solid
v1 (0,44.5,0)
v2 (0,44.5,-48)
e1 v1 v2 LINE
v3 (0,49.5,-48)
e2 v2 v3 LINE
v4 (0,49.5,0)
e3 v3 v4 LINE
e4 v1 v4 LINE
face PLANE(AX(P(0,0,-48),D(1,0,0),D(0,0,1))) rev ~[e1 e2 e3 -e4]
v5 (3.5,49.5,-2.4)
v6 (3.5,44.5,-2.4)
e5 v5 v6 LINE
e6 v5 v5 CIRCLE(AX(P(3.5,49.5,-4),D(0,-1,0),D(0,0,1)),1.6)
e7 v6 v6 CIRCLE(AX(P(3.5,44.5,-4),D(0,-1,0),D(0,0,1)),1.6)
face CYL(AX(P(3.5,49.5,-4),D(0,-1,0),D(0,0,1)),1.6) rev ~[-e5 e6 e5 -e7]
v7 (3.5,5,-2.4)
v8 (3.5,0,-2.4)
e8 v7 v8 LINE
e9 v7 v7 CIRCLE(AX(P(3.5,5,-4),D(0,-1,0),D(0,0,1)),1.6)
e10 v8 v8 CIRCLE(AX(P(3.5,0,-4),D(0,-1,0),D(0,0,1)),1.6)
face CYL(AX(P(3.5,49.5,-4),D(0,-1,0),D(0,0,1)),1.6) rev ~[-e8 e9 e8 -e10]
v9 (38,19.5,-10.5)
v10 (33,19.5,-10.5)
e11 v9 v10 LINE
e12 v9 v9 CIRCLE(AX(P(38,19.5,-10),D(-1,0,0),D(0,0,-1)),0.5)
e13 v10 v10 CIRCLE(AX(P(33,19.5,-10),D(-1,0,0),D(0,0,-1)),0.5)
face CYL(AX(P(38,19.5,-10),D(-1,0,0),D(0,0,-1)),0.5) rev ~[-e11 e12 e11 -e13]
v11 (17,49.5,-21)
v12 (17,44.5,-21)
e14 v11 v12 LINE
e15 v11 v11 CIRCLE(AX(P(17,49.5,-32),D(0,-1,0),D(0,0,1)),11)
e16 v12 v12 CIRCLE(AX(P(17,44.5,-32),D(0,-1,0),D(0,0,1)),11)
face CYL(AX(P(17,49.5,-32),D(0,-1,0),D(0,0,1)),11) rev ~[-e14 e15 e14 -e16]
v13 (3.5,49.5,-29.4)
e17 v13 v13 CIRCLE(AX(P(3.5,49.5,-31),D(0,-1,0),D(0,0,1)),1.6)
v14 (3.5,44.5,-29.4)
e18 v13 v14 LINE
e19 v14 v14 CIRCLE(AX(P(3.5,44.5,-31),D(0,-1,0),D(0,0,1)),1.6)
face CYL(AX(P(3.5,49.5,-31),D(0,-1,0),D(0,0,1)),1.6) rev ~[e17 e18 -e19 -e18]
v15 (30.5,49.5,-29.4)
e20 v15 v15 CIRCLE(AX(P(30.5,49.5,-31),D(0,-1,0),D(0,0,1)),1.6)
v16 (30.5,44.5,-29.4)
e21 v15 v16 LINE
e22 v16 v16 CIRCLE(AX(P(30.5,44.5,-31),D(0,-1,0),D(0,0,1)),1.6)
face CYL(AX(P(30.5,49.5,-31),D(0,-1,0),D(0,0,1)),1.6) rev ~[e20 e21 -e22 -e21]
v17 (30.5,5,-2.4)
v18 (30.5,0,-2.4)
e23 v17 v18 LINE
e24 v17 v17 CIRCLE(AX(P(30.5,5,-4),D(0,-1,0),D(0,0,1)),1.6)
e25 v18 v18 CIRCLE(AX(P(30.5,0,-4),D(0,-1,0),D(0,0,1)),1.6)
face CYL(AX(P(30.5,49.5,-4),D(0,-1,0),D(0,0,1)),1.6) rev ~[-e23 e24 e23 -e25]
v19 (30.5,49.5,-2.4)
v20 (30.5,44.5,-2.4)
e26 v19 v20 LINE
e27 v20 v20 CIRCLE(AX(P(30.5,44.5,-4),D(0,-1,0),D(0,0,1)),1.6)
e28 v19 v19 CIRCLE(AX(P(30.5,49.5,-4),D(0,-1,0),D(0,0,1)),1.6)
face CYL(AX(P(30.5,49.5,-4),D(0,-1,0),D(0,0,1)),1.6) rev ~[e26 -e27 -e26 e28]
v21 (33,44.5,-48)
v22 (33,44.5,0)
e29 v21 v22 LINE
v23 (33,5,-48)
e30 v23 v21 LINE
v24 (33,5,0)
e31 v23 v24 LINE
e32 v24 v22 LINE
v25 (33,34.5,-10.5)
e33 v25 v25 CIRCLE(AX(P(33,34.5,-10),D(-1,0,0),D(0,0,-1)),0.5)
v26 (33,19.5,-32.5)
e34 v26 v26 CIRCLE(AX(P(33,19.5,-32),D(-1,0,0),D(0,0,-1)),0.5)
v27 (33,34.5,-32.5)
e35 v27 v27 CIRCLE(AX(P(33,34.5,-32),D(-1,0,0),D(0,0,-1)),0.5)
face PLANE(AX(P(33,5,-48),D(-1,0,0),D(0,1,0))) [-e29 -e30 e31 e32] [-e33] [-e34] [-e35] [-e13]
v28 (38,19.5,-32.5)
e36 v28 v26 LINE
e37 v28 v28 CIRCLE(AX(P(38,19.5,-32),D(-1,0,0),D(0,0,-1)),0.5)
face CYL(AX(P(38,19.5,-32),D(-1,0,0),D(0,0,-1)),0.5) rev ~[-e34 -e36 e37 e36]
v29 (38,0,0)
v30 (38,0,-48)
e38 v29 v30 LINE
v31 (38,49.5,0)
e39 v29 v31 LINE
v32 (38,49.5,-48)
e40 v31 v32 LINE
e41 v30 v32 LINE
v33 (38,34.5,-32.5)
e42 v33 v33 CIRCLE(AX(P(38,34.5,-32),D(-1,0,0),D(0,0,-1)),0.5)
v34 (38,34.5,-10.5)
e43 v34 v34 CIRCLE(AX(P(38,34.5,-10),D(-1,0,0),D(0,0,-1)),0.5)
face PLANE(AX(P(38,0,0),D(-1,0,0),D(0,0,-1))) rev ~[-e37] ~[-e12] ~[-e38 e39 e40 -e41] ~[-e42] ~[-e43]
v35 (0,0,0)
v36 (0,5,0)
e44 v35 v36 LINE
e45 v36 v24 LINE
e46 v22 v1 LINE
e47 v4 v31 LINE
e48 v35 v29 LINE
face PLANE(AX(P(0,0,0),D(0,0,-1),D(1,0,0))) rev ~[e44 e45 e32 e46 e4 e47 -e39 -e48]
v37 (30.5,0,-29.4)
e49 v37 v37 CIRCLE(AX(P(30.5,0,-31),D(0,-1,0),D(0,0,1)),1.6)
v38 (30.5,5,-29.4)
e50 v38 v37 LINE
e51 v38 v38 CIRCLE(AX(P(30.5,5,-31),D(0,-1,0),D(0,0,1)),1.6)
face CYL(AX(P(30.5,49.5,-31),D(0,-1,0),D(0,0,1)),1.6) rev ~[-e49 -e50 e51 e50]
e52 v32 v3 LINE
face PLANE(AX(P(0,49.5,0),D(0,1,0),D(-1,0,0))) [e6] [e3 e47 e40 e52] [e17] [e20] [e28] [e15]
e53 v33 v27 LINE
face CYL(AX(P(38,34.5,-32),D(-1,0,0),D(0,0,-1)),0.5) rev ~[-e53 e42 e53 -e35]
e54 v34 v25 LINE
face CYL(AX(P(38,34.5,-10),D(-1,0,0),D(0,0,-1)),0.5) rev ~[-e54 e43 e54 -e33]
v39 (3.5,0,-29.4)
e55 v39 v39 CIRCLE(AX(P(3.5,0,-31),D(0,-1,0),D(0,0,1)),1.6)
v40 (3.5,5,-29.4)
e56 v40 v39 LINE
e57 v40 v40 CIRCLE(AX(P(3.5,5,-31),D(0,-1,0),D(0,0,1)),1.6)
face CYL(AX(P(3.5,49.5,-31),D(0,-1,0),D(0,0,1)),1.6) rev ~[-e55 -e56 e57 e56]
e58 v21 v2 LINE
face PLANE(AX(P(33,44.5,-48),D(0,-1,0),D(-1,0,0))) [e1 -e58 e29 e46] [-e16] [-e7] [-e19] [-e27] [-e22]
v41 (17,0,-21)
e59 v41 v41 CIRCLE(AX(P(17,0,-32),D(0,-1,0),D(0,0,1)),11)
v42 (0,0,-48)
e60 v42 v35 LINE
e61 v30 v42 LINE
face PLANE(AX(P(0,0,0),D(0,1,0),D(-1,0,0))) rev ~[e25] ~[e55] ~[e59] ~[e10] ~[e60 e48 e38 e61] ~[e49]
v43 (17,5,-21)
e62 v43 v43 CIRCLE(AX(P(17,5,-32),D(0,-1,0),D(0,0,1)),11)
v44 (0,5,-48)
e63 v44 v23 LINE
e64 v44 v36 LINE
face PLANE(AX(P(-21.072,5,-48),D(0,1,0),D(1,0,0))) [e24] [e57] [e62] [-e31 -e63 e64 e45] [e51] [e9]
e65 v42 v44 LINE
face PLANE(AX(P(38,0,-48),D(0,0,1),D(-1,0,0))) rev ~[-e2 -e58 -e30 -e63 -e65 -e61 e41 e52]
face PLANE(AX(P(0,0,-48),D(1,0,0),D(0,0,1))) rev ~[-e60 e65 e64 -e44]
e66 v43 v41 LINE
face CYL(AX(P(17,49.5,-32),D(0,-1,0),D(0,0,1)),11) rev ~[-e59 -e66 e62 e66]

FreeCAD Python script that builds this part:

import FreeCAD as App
import Part
import Sketcher

V = App.Vector


def add_polygon(sketch, points):
    """Adds a closed chain of lines whose ends are joined by coincident constraints."""
    first, n = sketch.GeometryCount, len(points)
    for a, b in zip(points, points[1:] + points[:1]):
        sketch.addGeometry(Part.LineSegment(App.Vector(*a, 0), App.Vector(*b, 0)), False)
    for i in range(n):
        sketch.addConstraint(Sketcher.Constraint("Coincident", first + i, 2, first + (i + 1) % n, 1))

doc = App.newDocument("Part")
body = doc.addObject("PartDesign::Body", "Body")

sketch1 = body.newObject("Sketcher::SketchObject", "Sketch")
sketch1.AttachmentSupport = (doc.getObject("XZ_Plane"), [""])
sketch1.MapMode = "FlatFace"
add_polygon(sketch1, [(0, -48), (0, 0), (38, 0), (38, -48)])
sketch1.addConstraint([
    Sketcher.Constraint("Vertical", 0),
    Sketcher.Constraint("Horizontal", 1),
    Sketcher.Constraint("Vertical", 2),
    Sketcher.Constraint("Horizontal", 3),
    Sketcher.Constraint("Coincident", 0, 2, -1, 1),
    Sketcher.Constraint("DistanceX", 1, 1, 1, 2, 38.0),
    Sketcher.Constraint("DistanceY", 0, 1, 0, 2, 48.0),
])
pad1 = body.newObject("PartDesign::Pad", "Pad")
pad1.Profile = sketch1
pad1.Length = 49.5
pad1.Reversed = True

sketch2 = body.newObject("Sketcher::SketchObject", "Sketch001")
sketch2.AttachmentSupport = (doc.getObject("XY_Plane"), [""])
sketch2.MapMode = "FlatFace"
sketch2.AttachmentOffset = App.Placement(V(0, 0, -48), App.Rotation())
add_polygon(sketch2, [(-21, 44), (33, 44), (33, 5), (-21, 5)])
sketch2.addConstraint([
    Sketcher.Constraint("Horizontal", 0),
    Sketcher.Constraint("Vertical", 1),
    Sketcher.Constraint("Horizontal", 2),
    Sketcher.Constraint("Vertical", 3),
    Sketcher.Constraint("DistanceY", 1, 2, 1, 1, 39.5),
    Sketcher.Constraint("DistanceY", -1, 1, 1, 2, 5.0),
    Sketcher.Constraint("DistanceX", -1, 1, 0, 2, 33.0),
    Sketcher.Constraint("DistanceX", 0, 1, 0, 2, 54.072),
])
pocket1 = body.newObject("PartDesign::Pocket", "Pocket")
pocket1.Profile = sketch2
pocket1.Length = 100
pocket1.Reversed = True

sketch3 = body.newObject("Sketcher::SketchObject", "Sketch002")
sketch3.AttachmentSupport = (doc.getObject("XZ_Plane"), [""])
sketch3.MapMode = "FlatFace"
sketch3.AttachmentOffset = App.Placement(V(0, 0, -49.5), App.Rotation())
sketch3.addGeometry(Part.Circle(V(17, -32, 0), V(0, 0, 1), 11), False)
sketch3.addConstraint([
    Sketcher.Constraint("Diameter", 0, 22.0),
    Sketcher.Constraint("DistanceX", -1, 1, 0, 3, 17.0),
    Sketcher.Constraint("DistanceY", 0, 3, -1, 1, 32.0),
])
doc.recompute()
hole = body.newObject("PartDesign::Hole", "Hole")
hole.Profile = sketch3
hole.ThreadType = "None"
hole.Diameter = 22
hole.DepthType = "ThroughAll"
hole.Reversed = True

sketch4 = body.newObject("Sketcher::SketchObject", "Sketch003")
sketch4.AttachmentSupport = (doc.getObject("XZ_Plane"), [""])
sketch4.MapMode = "FlatFace"
sketch4.AttachmentOffset = App.Placement(V(0, 0, -49.5), App.Rotation())
sketch4.addGeometry([
    Part.Circle(V(30.5, -4, 0), V(0, 0, 1), 1.6),
    Part.Circle(V(30.5, -31, 0), V(0, 0, 1), 1.6),
    Part.Circle(V(3.5, -31, 0), V(0, 0, 1), 1.6),
    Part.Circle(V(3.5, -4, 0), V(0, 0, 1), 1.6),
], False)
sketch4.addConstraint([
    Sketcher.Constraint("Equal", 0, 1),
    Sketcher.Constraint("Equal", 1, 2),
    Sketcher.Constraint("Equal", 2, 3),
    Sketcher.Constraint("Horizontal", 1, 3, 2, 3),
    Sketcher.Constraint("Horizontal", 0, 3, 3, 3),
    Sketcher.Constraint("Vertical", 0, 3, 1, 3),
    Sketcher.Constraint("Vertical", 2, 3, 3, 3),
    Sketcher.Constraint("Diameter", 0, 3.2),
    Sketcher.Constraint("DistanceY", 0, 3, -1, 1, 4.0),
    Sketcher.Constraint("DistanceY", 1, 3, -1, 1, 31.0),
    Sketcher.Constraint("DistanceX", 2, 3, 1, 3, 27.0),
    Sketcher.Constraint("DistanceX", -1, 1, 0, 3, 30.5),
])
doc.recompute()
hole2 = body.newObject("PartDesign::Hole", "Hole001")
hole2.Profile = sketch4
hole2.ThreadType = "None"
hole2.Diameter = 3.2
hole2.DepthType = "ThroughAll"
hole2.Reversed = True

sketch5 = body.newObject("Sketcher::SketchObject", "Sketch004")
sketch5.AttachmentSupport = (doc.getObject("YZ_Plane"), [""])
sketch5.MapMode = "FlatFace"
sketch5.AttachmentOffset = App.Placement(V(0, 0, 38), App.Rotation())
sketch5.addGeometry([
    Part.Circle(V(34.5, -10, 0), V(0, 0, 1), 0.5),
    Part.Circle(V(34.5, -32, 0), V(0, 0, 1), 0.5),
    Part.Circle(V(19.5, -10, 0), V(0, 0, 1), 0.5),
    Part.Circle(V(19.5, -32, 0), V(0, 0, 1), 0.5),
], False)
sketch5.addConstraint([
    Sketcher.Constraint("Equal", 0, 1),
    Sketcher.Constraint("Equal", 1, 2),
    Sketcher.Constraint("Equal", 2, 3),
    Sketcher.Constraint("Horizontal", 0, 3, 2, 3),
    Sketcher.Constraint("Horizontal", 1, 3, 3, 3),
    Sketcher.Constraint("Vertical", 0, 3, 1, 3),
    Sketcher.Constraint("Vertical", 2, 3, 3, 3),
    Sketcher.Constraint("Diameter", 0, 1.0),
    Sketcher.Constraint("DistanceY", 0, 3, -1, 1, 10.0),
    Sketcher.Constraint("DistanceY", 1, 3, -1, 1, 32.0),
    Sketcher.Constraint("DistanceX", 2, 3, 0, 3, 15.0),
    Sketcher.Constraint("DistanceX", -1, 1, 0, 3, 34.5),
])
doc.recompute()
hole3 = body.newObject("PartDesign::Hole", "Hole002")
hole3.Profile = sketch5
hole3.ThreadType = "None"
hole3.Diameter = 1
hole3.DepthType = "ThroughAll"

doc.recompute()
